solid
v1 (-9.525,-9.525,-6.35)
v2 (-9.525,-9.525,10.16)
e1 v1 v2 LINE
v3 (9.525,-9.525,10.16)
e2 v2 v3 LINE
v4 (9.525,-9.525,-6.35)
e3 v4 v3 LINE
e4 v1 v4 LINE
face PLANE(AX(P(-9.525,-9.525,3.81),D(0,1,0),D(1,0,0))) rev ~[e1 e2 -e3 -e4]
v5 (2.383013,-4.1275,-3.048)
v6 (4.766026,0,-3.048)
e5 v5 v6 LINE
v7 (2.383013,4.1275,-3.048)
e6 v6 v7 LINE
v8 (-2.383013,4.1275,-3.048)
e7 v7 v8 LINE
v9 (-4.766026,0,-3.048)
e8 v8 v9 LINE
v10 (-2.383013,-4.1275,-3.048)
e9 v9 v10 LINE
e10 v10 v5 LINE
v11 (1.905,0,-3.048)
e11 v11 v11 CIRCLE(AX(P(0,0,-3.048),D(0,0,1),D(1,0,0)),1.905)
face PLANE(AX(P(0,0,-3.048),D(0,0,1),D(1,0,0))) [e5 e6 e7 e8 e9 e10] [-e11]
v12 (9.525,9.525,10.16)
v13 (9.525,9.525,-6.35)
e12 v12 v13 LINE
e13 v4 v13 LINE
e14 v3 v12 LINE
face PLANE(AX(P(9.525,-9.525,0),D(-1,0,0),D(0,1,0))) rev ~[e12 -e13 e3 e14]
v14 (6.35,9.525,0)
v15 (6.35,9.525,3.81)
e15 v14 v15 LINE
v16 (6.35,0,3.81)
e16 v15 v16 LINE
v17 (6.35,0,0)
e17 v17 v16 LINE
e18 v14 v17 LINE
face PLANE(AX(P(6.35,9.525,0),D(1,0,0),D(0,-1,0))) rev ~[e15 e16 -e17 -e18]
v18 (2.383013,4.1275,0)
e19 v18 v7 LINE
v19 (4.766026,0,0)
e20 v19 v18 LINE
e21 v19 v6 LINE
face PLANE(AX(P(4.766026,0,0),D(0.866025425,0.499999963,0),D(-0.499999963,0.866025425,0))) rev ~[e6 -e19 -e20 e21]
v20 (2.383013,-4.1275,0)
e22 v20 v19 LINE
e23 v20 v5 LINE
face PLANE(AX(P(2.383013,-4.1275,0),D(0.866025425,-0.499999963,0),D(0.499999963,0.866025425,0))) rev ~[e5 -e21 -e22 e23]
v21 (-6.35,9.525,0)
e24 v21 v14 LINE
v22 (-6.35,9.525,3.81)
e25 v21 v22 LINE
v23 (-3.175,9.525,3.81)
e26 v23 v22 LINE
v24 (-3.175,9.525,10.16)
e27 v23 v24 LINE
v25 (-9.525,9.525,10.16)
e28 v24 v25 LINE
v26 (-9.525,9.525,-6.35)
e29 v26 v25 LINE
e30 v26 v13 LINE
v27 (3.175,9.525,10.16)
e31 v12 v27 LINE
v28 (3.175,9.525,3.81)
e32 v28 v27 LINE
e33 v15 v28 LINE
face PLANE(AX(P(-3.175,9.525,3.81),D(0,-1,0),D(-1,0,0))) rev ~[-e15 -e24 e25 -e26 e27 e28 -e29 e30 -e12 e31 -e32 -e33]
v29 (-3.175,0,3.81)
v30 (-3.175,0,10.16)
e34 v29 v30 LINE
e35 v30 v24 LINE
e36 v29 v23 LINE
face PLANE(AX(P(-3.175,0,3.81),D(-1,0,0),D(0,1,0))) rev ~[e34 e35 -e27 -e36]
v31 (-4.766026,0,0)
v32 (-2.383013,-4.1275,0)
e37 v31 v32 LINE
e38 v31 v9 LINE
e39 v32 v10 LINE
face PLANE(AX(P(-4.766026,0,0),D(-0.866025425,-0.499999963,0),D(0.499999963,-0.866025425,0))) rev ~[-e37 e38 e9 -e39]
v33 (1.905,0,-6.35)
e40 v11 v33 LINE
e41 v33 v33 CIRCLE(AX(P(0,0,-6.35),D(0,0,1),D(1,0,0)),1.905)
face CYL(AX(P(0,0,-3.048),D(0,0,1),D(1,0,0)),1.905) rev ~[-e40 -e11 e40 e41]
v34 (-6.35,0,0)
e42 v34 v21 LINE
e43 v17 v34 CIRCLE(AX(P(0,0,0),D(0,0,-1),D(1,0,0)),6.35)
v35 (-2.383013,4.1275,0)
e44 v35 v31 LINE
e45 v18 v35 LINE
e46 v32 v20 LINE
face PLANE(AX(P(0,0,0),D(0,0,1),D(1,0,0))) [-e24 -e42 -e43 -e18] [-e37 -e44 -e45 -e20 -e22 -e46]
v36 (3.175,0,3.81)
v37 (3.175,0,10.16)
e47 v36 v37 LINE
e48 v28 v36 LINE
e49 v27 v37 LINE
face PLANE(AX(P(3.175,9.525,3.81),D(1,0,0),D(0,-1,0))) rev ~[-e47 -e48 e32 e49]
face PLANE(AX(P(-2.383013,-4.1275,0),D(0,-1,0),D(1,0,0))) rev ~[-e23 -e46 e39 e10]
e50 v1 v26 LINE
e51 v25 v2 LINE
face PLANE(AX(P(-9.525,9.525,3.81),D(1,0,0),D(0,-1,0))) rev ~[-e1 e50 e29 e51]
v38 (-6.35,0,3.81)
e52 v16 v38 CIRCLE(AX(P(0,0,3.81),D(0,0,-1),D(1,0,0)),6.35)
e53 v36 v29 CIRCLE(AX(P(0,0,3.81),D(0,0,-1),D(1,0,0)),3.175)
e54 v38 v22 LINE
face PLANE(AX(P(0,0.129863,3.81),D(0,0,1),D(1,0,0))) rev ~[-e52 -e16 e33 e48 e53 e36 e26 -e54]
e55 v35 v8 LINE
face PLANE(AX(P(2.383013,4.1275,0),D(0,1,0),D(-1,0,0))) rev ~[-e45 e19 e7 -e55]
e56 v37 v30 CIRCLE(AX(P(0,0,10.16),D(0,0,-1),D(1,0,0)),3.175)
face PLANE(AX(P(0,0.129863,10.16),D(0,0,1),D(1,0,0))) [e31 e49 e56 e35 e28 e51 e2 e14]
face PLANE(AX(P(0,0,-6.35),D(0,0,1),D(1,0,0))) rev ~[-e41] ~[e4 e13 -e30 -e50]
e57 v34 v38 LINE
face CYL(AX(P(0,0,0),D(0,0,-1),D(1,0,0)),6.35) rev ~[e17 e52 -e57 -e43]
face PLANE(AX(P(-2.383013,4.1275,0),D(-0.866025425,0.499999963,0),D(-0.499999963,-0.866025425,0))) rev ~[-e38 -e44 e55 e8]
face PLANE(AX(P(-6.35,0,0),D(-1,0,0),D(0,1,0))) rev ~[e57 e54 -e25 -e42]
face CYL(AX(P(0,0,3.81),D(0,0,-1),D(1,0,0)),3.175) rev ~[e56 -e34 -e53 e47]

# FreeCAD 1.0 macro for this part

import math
import FreeCAD as App
import Part
import Sketcher
Q = App.Units.Quantity


def add_polygon(sketch, points):
    """Adds a closed chain of lines whose ends are joined by coincident constraints."""
    first, n = sketch.GeometryCount, len(points)
    for a, b in zip(points, points[1:] + points[:1]):
        sketch.addGeometry(Part.LineSegment(App.Vector(*a, 0), App.Vector(*b, 0)), False)
    for i in range(n):
        sketch.addConstraint(Sketcher.Constraint("Coincident", first + i, 2, first + (i + 1) % n, 1))

doc = App.newDocument("Part")
body = doc.addObject("PartDesign::Body", "Body")

sketch1 = doc.addObject("Sketcher::SketchObject", "Sketch")
body.addObject(sketch1)
sketch1.AttachmentSupport = (doc.XY_Plane, [""])
sketch1.MapMode = "FlatFace"
add_polygon(sketch1, [(-10, 10), (-10, -10), (10, -10), (10, 10)])
sketch1.addConstraint([
    Sketcher.Constraint("Vertical", 0),
    Sketcher.Constraint("Horizontal", 1),
    Sketcher.Constraint("Vertical", 2),
    Sketcher.Constraint("Horizontal", 3),
    Sketcher.Constraint("Symmetric", 0, 2, 2, 2, -1, 1),
    Sketcher.Constraint("Equal", 3, 0),
    Sketcher.Constraint("DistanceX", 1, 1, 1, 2, Q("0.75 in")),
])
pad1 = doc.addObject("PartDesign::Pad", "Pad")
body.addObject(pad1)
pad1.Profile = sketch1
pad1.Length = Q("0.25 in")
pad1.Reversed = True

sketch2 = doc.addObject("Sketcher::SketchObject", "Sketch001")
body.addObject(sketch2)
sketch2.AttachmentSupport = (doc.XY_Plane, [""])
sketch2.MapMode = "FlatFace"
sketch2.addGeometry([
    Part.ArcOfCircle(Part.Circle(App.Vector(0, 0, 0), App.Vector(0, 0, 1), 6.3), math.radians(180), math.radians(360)),
    Part.LineSegment(App.Vector(-6.3, 0, 0), App.Vector(-6.3, 9.5, 0)),
    Part.LineSegment(App.Vector(-6.3, 9.5, 0), App.Vector(-9.5, 9.5, 0)),
    Part.LineSegment(App.Vector(-9.5, 9.5, 0), App.Vector(-9.5, -9.5, 0)),
    Part.LineSegment(App.Vector(-9.5, -9.5, 0), App.Vector(9.5, -9.5, 0)),
    Part.LineSegment(App.Vector(9.5, -9.5, 0), App.Vector(9.5, 9.5, 0)),
    Part.LineSegment(App.Vector(9.5, 9.5, 0), App.Vector(6.3, 9.5, 0)),
    Part.LineSegment(App.Vector(6.3, 9.5, 0), App.Vector(6.3, 0, 0)),
], False)
sketch2.addConstraint([
    Sketcher.Constraint("Tangent", 0, 1, 1, 1),
    Sketcher.Constraint("Coincident", 1, 2, 2, 1),
    Sketcher.Constraint("Coincident", 2, 2, 3, 1),
    Sketcher.Constraint("Coincident", 3, 2, 4, 1),
    Sketcher.Constraint("Coincident", 4, 2, 5, 1),
    Sketcher.Constraint("Coincident", 5, 2, 6, 1),
    Sketcher.Constraint("Coincident", 6, 2, 7, 1),
    Sketcher.Constraint("Tangent", 7, 2, 0, 2),
    Sketcher.Constraint("Vertical", 1),
    Sketcher.Constraint("Horizontal", 2),
    Sketcher.Constraint("Vertical", 3),
    Sketcher.Constraint("Horizontal", 4),
    Sketcher.Constraint("Vertical", 5),
    Sketcher.Constraint("Horizontal", 6),
    Sketcher.Constraint("Vertical", 7),
    Sketcher.Constraint("Coincident", 0, 3, -1, 1),
    Sketcher.Constraint("Symmetric", 2, 2, 4, 2, -1, 1),
    Sketcher.Constraint("Horizontal", 2, 2, 5, 2),
    Sketcher.Constraint("Equal", 4, 3),
    Sketcher.Constraint("Radius", 0, Q("0.25 in")),
    Sketcher.Constraint("DistanceX", 4, 1, 4, 2, Q("0.75 in")),
])
pad2 = doc.addObject("PartDesign::Pad", "Pad001")
body.addObject(pad2)
pad2.Profile = sketch2
pad2.Length = Q("0.15 in")

sketch3 = doc.addObject("Sketcher::SketchObject", "Sketch002")
body.addObject(sketch3)
sketch3.AttachmentSupport = (doc.XY_Plane, [""])
sketch3.MapMode = "FlatFace"
sketch3.AttachmentOffset = App.Placement(App.Vector(0, 0, 0.15 * 25.4), App.Rotation())
sketch3.addGeometry([
    Part.LineSegment(App.Vector(-3.2, 9.5, 0), App.Vector(-9.5, 9.5, 0)),
    Part.LineSegment(App.Vector(-9.5, 9.5, 0), App.Vector(-9.5, -9.5, 0)),
    Part.LineSegment(App.Vector(-9.5, -9.5, 0), App.Vector(9.5, -9.5, 0)),
    Part.LineSegment(App.Vector(9.5, -9.5, 0), App.Vector(9.5, 9.5, 0)),
    Part.LineSegment(App.Vector(9.5, 9.5, 0), App.Vector(3.2, 9.5, 0)),
    Part.LineSegment(App.Vector(3.2, 9.5, 0), App.Vector(3.2, 0, 0)),
    Part.ArcOfCircle(Part.Circle(App.Vector(0, 0, 0), App.Vector(0, 0, 1), 3.2), math.radians(180), math.radians(360)),
    Part.LineSegment(App.Vector(-3.2, 0, 0), App.Vector(-3.2, 9.5, 0)),
], False)
sketch3.addConstraint([
    Sketcher.Constraint("Coincident", 0, 2, 1, 1),
    Sketcher.Constraint("Coincident", 1, 2, 2, 1),
    Sketcher.Constraint("Coincident", 2, 2, 3, 1),
    Sketcher.Constraint("Coincident", 3, 2, 4, 1),
    Sketcher.Constraint("Coincident", 4, 2, 5, 1),
    Sketcher.Constraint("Tangent", 5, 2, 6, 2),
    Sketcher.Constraint("Tangent", 6, 1, 7, 1),
    Sketcher.Constraint("Coincident", 7, 2, 0, 1),
    Sketcher.Constraint("Horizontal", 0),
    Sketcher.Constraint("Vertical", 1),
    Sketcher.Constraint("Horizontal", 2),
    Sketcher.Constraint("Vertical", 3),
    Sketcher.Constraint("Horizontal", 4),
    Sketcher.Constraint("Vertical", 5),
    Sketcher.Constraint("Vertical", 7),
    Sketcher.Constraint("Coincident", 6, 3, -1, 1),
    Sketcher.Constraint("Symmetric", 0, 2, 2, 2, -1, 1),
    Sketcher.Constraint("Horizontal", 0, 2, 3, 2),
    Sketcher.Constraint("Equal", 2, 1),
    Sketcher.Constraint("Radius", 6, Q("0.125 in")),
    Sketcher.Constraint("DistanceX", 0, 2, 0, 1, Q("0.25 in")),
])
pad3 = doc.addObject("PartDesign::Pad", "Pad002")
body.addObject(pad3)
pad3.Profile = sketch3
pad3.Length = Q("0.25 in")

sketch4 = doc.addObject("Sketcher::SketchObject", "Sketch003")
body.addObject(sketch4)
sketch4.AttachmentSupport = (doc.XY_Plane, [""])
sketch4.MapMode = "FlatFace"
add_polygon(sketch4, [(2.4, -4.1), (4.8, 0), (2.4, 4.1), (-2.4, 4.1), (-4.8, 0), (-2.4, -4.1)])
sketch4.addConstraint([
    Sketcher.Constraint("Horizontal", 2),
    Sketcher.Constraint("Horizontal", 5),
    Sketcher.Constraint("Symmetric", 0, 2, 3, 2, -1, 1),
    Sketcher.Constraint("Symmetric", 1, 2, 4, 2, -1, 1),
    Sketcher.Constraint("PointOnObject", 0, 2, -1),
    Sketcher.Constraint("Parallel", 0, 3),
    Sketcher.Constraint("Vertical", 2, 2, 4, 2),
    Sketcher.Constraint("Angle", 0, Q("60.000002 deg")),
    Sketcher.Constraint("DistanceY", 4, 2, 2, 2, Q("0.325 in")),
    Sketcher.Constraint("DistanceX", 2, 2, 2, 1, Q("4.766026 mm")),
])
pocket1 = doc.addObject("PartDesign::Pocket", "Pocket")
body.addObject(pocket1)
pocket1.Profile = sketch4
pocket1.Length = Q("0.12 in")

sketch5 = doc.addObject("Sketcher::SketchObject", "Sketch004")
body.addObject(sketch5)
sketch5.AttachmentSupport = (doc.XY_Plane, [""])
sketch5.MapMode = "FlatFace"
sketch5.AttachmentOffset = App.Placement(App.Vector(0, 0, -0.12 * 25.4), App.Rotation())
sketch5.addGeometry(Part.Circle(App.Vector(0, 0, 0), App.Vector(0, 0, 1), 1.9), False)
sketch5.addConstraint([
    Sketcher.Constraint("Coincident", 0, 3, -1, 1),
    Sketcher.Constraint("Diameter", 0, Q("0.15 in")),
])
pocket2 = doc.addObject("PartDesign::Pocket", "Pocket001")
body.addObject(pocket2)
pocket2.Profile = sketch5
pocket2.Type = "ThroughAll"

doc.recompute()
